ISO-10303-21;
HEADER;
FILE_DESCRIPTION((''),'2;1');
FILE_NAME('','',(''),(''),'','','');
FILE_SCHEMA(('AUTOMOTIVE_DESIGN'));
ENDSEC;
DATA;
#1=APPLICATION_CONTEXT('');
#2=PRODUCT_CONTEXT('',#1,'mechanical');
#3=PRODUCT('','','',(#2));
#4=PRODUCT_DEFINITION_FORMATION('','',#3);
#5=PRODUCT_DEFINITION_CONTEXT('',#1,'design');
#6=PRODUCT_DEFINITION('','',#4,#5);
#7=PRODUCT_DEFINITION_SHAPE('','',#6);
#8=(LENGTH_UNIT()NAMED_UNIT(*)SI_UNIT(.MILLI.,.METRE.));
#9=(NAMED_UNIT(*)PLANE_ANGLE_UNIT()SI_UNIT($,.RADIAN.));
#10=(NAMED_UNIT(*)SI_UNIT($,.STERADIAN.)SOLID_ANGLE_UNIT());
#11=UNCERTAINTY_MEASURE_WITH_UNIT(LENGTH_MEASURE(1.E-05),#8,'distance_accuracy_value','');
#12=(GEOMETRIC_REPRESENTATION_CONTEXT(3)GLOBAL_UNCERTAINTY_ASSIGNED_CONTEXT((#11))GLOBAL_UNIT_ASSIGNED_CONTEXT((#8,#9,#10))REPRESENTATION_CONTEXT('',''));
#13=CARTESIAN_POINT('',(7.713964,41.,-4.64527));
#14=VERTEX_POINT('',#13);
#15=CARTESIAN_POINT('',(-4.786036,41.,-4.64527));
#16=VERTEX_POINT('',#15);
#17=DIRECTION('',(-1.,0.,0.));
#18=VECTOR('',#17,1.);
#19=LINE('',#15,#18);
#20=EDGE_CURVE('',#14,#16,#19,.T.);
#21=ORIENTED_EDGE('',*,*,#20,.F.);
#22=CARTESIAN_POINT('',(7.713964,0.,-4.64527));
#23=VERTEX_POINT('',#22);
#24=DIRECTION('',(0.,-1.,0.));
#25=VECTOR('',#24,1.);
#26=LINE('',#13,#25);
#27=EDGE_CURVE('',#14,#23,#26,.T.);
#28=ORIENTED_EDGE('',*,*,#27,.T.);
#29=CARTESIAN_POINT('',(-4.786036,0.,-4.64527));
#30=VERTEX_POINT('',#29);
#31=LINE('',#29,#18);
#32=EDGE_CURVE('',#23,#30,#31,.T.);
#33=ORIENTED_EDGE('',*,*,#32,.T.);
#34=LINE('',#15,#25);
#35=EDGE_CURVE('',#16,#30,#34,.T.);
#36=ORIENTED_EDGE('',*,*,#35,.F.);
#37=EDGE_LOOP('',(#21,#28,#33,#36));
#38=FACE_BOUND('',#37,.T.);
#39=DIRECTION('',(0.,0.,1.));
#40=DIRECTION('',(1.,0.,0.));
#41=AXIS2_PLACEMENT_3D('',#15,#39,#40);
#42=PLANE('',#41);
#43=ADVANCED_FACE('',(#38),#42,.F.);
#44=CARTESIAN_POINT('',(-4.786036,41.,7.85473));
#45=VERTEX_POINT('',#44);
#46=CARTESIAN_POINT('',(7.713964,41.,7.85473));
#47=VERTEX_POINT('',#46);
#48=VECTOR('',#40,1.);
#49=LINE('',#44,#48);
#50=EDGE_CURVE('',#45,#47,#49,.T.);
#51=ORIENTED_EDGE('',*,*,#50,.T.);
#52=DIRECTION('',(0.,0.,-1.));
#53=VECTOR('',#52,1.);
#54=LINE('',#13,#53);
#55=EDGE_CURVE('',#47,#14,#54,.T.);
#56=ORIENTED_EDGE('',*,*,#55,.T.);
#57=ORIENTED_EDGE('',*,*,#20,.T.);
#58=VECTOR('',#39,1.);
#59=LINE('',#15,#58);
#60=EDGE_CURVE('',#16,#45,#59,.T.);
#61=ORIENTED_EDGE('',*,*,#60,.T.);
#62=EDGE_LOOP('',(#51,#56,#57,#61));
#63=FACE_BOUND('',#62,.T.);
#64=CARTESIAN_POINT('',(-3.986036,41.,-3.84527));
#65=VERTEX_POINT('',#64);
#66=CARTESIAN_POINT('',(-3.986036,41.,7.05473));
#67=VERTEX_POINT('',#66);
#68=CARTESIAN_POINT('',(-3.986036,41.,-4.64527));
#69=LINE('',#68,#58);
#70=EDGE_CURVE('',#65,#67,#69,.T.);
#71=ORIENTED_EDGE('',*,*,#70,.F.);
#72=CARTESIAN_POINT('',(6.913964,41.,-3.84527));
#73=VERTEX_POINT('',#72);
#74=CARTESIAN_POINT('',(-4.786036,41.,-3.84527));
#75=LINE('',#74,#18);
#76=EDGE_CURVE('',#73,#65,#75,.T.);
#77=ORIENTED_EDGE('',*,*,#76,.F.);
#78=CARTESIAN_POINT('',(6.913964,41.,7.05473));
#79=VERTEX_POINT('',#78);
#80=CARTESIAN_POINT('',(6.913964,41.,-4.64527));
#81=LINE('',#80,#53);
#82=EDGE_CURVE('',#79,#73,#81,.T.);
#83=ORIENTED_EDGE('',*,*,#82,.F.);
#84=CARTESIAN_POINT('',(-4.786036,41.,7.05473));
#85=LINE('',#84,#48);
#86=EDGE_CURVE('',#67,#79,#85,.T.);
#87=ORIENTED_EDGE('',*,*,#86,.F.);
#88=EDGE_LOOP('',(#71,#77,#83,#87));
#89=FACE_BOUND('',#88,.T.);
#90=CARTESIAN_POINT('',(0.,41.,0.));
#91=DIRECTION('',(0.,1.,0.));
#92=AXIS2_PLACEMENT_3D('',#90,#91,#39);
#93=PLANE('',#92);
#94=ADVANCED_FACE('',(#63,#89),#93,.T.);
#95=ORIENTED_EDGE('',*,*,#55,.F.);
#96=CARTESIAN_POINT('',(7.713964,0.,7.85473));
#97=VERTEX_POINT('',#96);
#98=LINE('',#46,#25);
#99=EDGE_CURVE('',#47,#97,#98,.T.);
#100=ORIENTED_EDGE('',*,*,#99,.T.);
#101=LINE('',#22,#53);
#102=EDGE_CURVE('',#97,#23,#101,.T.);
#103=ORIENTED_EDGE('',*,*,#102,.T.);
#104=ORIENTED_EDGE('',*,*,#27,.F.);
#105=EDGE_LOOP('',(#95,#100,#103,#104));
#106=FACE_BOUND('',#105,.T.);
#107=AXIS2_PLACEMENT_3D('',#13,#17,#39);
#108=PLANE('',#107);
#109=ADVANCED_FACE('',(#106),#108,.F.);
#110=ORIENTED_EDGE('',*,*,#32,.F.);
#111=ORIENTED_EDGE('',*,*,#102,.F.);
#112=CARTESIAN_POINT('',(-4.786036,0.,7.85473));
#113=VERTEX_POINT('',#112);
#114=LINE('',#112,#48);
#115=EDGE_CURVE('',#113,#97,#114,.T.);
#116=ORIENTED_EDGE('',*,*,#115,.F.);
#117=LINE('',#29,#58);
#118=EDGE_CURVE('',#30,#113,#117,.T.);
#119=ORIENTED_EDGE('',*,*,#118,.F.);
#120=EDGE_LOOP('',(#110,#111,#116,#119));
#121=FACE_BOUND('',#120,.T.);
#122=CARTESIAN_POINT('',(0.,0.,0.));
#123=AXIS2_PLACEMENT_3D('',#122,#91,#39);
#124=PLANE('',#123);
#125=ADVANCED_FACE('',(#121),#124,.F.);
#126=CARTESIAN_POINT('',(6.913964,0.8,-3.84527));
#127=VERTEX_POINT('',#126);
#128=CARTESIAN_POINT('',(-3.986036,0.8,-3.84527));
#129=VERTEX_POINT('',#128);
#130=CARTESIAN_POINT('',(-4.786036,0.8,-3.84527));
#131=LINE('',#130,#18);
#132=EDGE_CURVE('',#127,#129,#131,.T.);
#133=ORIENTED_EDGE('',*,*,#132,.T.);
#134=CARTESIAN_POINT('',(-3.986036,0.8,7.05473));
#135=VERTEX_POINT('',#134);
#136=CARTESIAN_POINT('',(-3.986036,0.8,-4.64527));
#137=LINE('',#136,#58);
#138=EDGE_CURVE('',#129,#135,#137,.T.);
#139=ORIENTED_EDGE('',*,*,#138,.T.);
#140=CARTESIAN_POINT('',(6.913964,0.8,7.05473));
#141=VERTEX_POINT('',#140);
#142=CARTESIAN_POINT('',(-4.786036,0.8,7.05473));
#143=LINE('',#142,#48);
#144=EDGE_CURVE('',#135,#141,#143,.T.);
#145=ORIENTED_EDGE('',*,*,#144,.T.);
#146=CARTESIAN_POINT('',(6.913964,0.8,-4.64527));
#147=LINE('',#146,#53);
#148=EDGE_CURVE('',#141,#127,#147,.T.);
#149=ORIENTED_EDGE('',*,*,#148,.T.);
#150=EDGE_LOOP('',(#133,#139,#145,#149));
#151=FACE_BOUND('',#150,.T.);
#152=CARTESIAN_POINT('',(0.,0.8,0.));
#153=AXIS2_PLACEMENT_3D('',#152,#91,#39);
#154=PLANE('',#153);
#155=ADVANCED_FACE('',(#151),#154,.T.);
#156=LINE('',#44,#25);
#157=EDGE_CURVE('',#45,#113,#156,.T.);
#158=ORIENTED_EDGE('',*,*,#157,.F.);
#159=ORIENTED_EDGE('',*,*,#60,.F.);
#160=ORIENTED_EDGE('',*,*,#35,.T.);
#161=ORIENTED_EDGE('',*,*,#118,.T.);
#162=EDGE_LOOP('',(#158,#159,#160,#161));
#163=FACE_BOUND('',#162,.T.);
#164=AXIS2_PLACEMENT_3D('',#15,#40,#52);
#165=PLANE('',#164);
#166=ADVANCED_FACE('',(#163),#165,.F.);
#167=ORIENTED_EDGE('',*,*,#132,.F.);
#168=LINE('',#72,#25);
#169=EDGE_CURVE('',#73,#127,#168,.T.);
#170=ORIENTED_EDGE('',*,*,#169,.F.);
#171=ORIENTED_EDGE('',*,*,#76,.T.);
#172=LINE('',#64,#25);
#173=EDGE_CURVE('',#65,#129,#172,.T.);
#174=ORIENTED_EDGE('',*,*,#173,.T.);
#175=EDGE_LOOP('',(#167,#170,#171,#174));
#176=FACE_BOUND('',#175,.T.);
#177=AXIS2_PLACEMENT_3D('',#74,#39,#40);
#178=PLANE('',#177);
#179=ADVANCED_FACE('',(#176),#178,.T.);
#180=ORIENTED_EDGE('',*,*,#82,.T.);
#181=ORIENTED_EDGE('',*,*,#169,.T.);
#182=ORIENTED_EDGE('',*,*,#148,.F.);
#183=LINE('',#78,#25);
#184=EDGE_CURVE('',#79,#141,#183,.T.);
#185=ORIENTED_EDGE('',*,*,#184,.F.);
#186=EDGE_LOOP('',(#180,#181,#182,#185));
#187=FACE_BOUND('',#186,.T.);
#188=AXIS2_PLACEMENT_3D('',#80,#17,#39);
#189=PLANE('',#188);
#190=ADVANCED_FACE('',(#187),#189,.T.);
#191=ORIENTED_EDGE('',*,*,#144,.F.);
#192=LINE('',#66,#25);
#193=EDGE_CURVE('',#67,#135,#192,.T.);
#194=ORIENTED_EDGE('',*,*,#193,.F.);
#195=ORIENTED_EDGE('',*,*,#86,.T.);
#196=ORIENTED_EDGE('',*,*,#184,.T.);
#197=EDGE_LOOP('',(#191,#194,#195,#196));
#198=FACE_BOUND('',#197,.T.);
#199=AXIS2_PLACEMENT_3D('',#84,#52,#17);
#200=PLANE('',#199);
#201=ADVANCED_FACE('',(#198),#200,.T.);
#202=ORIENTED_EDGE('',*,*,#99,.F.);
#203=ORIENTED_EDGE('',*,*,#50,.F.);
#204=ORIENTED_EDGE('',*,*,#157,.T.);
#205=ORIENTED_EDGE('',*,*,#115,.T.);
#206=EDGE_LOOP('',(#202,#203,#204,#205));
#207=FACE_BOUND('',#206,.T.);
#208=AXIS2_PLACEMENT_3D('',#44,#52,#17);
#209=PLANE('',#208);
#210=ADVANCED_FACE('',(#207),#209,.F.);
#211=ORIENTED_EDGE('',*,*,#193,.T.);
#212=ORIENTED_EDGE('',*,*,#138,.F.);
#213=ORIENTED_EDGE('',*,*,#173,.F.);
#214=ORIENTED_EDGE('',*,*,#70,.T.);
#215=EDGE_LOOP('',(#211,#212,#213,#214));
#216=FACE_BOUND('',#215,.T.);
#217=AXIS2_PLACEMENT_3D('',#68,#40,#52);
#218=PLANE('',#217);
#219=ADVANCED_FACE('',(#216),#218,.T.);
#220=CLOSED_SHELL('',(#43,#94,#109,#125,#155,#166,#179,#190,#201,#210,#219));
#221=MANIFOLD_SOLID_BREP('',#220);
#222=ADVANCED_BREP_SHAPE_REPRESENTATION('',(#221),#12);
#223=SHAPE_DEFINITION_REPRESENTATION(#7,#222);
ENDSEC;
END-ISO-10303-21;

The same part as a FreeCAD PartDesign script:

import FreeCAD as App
import Part
import Sketcher
Q = App.Units.Quantity


def faces_at(feature, points):
    """Names of the faces that lie closest to the given points."""
    faces = feature.Shape.Faces
    near = lambda p: min(range(len(faces)), key=lambda i: faces[i].distToShape(Part.Vertex(*p))[0])
    return sorted({f"Face{near(p) + 1}" for p in points})

doc = App.newDocument("Part")
body = doc.addObject("PartDesign::Body", "Body")

sketch1 = doc.addObject("Sketcher::SketchObject", "Sketch")
body.addObject(sketch1)
sketch1.AttachmentSupport = (doc.XZ_Plane, [""])
sketch1.MapMode = "FlatFace"
sketch1.addGeometry([
    Part.LineSegment(App.Vector(-5, -5, 0), App.Vector(-5, 8, 0)),
    Part.LineSegment(App.Vector(-5, 8, 0), App.Vector(8, 8, 0)),
    Part.LineSegment(App.Vector(8, 8, 0), App.Vector(8, -5, 0)),
    Part.LineSegment(App.Vector(8, -5, 0), App.Vector(-5, -5, 0)),
], False)
sketch1.addConstraint([
    Sketcher.Constraint("Coincident", 0, 2, 1, 1),
    Sketcher.Constraint("Coincident", 1, 2, 2, 1),
    Sketcher.Constraint("Coincident", 2, 2, 3, 1),
    Sketcher.Constraint("Coincident", 3, 2, 0, 1),
    Sketcher.Constraint("Vertical", 0),
    Sketcher.Constraint("Horizontal", 1),
    Sketcher.Constraint("Vertical", 2),
    Sketcher.Constraint("Horizontal", 3),
    Sketcher.Constraint("Equal", 3, 0),
    Sketcher.Constraint("DistanceX", 1, 1, 1, 2, Q("12.5 mm")),
    Sketcher.Constraint("DistanceY", -1, 1, 0, 2, Q("7.85473 mm")),
    Sketcher.Constraint("DistanceX", 0, 2, -1, 1, Q("4.786036 mm")),
])
pad1 = doc.addObject("PartDesign::Pad", "Pad")
body.addObject(pad1)
pad1.Profile = sketch1
pad1.Length = 41
pad1.Reversed = True
doc.recompute()

thickness = doc.addObject("PartDesign::Thickness", "Thickness")
body.addObject(thickness)
thickness.Base = (pad1, faces_at(pad1, [(1.464, 41, 1.605)]))
thickness.Value = 0.8
thickness.Reversed = True
thickness.Join = "Intersection"

doc.recompute()
